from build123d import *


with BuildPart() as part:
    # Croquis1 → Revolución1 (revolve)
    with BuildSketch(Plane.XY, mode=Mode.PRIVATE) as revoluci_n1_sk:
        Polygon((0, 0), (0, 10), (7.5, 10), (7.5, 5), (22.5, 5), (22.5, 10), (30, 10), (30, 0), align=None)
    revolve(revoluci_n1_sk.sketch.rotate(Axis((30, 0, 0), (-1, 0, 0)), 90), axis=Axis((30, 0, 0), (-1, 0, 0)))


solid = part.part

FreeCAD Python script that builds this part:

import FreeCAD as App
import Part
import Sketcher

doc = App.newDocument("Part")
params = doc.addObject("Spreadsheet::Sheet", "Params")
for row, (alias, value) in enumerate([
    ("sketch1_width", "30 mm"),
    ("sketch1_width2", "15 mm"),
    ("sketch1_height", "10 mm"),
    ("sketch1_height2", "5 mm"),
    ("revolution_angle", "360 deg"),
], start=1):
    params.set(f"A{row}", alias)
    params.set(f"B{row}", "=" + value)
    params.setAlias(f"B{row}", alias)

body = doc.addObject("PartDesign::Body", "Body")

# Sketch on XY plane
sketch1 = doc.addObject("Sketcher::SketchObject", "Sketch")
body.addObject(sketch1)
sketch1.AttachmentSupport = (doc.XY_Plane, [""])
sketch1.MapMode = "FlatFace"
sketch1.addGeometry(Part.LineSegment(App.Vector(0, 10, 0), App.Vector(0, 0, 0)), False)
sketch1.addGeometry(Part.LineSegment(App.Vector(0, 0, 0), App.Vector(30, 0, 0)), False)
sketch1.addGeometry(Part.LineSegment(App.Vector(30, 0, 0), App.Vector(30, 10, 0)), False)
sketch1.addGeometry(Part.LineSegment(App.Vector(30, 10, 0), App.Vector(22, 10, 0)), False)
sketch1.addGeometry(Part.LineSegment(App.Vector(22, 10, 0), App.Vector(22, 5, 0)), False)
sketch1.addGeometry(Part.LineSegment(App.Vector(22, 5, 0), App.Vector(8, 5, 0)), False)
sketch1.addGeometry(Part.LineSegment(App.Vector(8, 5, 0), App.Vector(8, 10, 0)), False)
sketch1.addGeometry(Part.LineSegment(App.Vector(8, 10, 0), App.Vector(0, 10, 0)), False)
sketch1.addConstraint(Sketcher.Constraint("Coincident", 0, 2, 1, 1))
sketch1.addConstraint(Sketcher.Constraint("Coincident", 1, 2, 2, 1))
sketch1.addConstraint(Sketcher.Constraint("Coincident", 2, 2, 3, 1))
sketch1.addConstraint(Sketcher.Constraint("Coincident", 3, 2, 4, 1))
sketch1.addConstraint(Sketcher.Constraint("Coincident", 4, 2, 5, 1))
sketch1.addConstraint(Sketcher.Constraint("Coincident", 5, 2, 6, 1))
sketch1.addConstraint(Sketcher.Constraint("Coincident", 6, 2, 7, 1))
sketch1.addConstraint(Sketcher.Constraint("Coincident", 7, 2, 0, 1))
sketch1.addConstraint(Sketcher.Constraint("Vertical", 0))
sketch1.addConstraint(Sketcher.Constraint("Horizontal", 1))
sketch1.addConstraint(Sketcher.Constraint("Vertical", 2))
sketch1.addConstraint(Sketcher.Constraint("Horizontal", 3))
sketch1.addConstraint(Sketcher.Constraint("Vertical", 4))
sketch1.addConstraint(Sketcher.Constraint("Horizontal", 5))
sketch1.addConstraint(Sketcher.Constraint("Vertical", 6))
sketch1.addConstraint(Sketcher.Constraint("Horizontal", 7))
sketch1.addConstraint(Sketcher.Constraint("Coincident", 0, 2, -1, 1))
sketch1.addConstraint(Sketcher.Constraint("Horizontal", 3, 2, 6, 2))
sketch1.addConstraint(Sketcher.Constraint("Equal", 3, 7))
sketch1.addConstraint(Sketcher.Constraint("DistanceX", 1, 1, 1, 2, 30.0))
sketch1.addConstraint(Sketcher.Constraint("DistanceX", 5, 2, 5, 1, 15.0))
sketch1.addConstraint(Sketcher.Constraint("DistanceY", 0, 2, 0, 1, 10.0))
sketch1.addConstraint(Sketcher.Constraint("DistanceY", 4, 2, 4, 1, 5.0))
sketch1.setExpression("Constraints[19]", "Params.sketch1_width")
sketch1.setExpression("Constraints[20]", "Params.sketch1_width2")
sketch1.setExpression("Constraints[21]", "Params.sketch1_height")
sketch1.setExpression("Constraints[22]", "Params.sketch1_height2")
revolution = doc.addObject("PartDesign::Revolution", "Revolution")
body.addObject(revolution)
revolution.Profile = sketch1
revolution.ReferenceAxis = (sketch1, ["H_Axis"])
revolution.setExpression("Angle", "Params.revolution_angle")

doc.recompute()
